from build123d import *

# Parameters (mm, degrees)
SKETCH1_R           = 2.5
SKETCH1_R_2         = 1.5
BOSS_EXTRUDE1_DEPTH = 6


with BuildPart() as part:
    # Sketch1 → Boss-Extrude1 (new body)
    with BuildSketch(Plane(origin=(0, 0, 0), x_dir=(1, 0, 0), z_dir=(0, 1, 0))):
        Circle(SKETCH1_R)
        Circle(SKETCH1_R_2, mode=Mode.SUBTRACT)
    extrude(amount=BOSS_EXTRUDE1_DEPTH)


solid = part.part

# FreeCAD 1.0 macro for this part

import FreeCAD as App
import Part
import Sketcher
Q = App.Units.Quantity

doc = App.newDocument("Part")
body = doc.addObject("PartDesign::Body", "Body")

# Sketch on XZ plane
sketch1 = body.newObject("Sketcher::SketchObject", "Sketch")
sketch1.AttachmentSupport = (doc.getObject("XZ_Plane"), [""])
sketch1.MapMode = "FlatFace"
sketch1.addGeometry(Part.Circle(App.Vector(0, 0, 0), App.Vector(0, 0, 1), 2.5), False)
sketch1.addGeometry(Part.Circle(App.Vector(0, 0, 0), App.Vector(0, 0, 1), 1.5), False)
sketch1.addConstraint(Sketcher.Constraint("Coincident", 0, 3, -1, 1))
sketch1.addConstraint(Sketcher.Constraint("Coincident", 1, 3, -1, 1))
sketch1.addConstraint(Sketcher.Constraint("Diameter", 0, Q("5 mm")))
sketch1.addConstraint(Sketcher.Constraint("Diameter", 1, Q("3 mm")))
pad1 = body.newObject("PartDesign::Pad", "Pad")
pad1.Profile = sketch1
pad1.Length = 6
pad1.Reversed = True

doc.recompute()
